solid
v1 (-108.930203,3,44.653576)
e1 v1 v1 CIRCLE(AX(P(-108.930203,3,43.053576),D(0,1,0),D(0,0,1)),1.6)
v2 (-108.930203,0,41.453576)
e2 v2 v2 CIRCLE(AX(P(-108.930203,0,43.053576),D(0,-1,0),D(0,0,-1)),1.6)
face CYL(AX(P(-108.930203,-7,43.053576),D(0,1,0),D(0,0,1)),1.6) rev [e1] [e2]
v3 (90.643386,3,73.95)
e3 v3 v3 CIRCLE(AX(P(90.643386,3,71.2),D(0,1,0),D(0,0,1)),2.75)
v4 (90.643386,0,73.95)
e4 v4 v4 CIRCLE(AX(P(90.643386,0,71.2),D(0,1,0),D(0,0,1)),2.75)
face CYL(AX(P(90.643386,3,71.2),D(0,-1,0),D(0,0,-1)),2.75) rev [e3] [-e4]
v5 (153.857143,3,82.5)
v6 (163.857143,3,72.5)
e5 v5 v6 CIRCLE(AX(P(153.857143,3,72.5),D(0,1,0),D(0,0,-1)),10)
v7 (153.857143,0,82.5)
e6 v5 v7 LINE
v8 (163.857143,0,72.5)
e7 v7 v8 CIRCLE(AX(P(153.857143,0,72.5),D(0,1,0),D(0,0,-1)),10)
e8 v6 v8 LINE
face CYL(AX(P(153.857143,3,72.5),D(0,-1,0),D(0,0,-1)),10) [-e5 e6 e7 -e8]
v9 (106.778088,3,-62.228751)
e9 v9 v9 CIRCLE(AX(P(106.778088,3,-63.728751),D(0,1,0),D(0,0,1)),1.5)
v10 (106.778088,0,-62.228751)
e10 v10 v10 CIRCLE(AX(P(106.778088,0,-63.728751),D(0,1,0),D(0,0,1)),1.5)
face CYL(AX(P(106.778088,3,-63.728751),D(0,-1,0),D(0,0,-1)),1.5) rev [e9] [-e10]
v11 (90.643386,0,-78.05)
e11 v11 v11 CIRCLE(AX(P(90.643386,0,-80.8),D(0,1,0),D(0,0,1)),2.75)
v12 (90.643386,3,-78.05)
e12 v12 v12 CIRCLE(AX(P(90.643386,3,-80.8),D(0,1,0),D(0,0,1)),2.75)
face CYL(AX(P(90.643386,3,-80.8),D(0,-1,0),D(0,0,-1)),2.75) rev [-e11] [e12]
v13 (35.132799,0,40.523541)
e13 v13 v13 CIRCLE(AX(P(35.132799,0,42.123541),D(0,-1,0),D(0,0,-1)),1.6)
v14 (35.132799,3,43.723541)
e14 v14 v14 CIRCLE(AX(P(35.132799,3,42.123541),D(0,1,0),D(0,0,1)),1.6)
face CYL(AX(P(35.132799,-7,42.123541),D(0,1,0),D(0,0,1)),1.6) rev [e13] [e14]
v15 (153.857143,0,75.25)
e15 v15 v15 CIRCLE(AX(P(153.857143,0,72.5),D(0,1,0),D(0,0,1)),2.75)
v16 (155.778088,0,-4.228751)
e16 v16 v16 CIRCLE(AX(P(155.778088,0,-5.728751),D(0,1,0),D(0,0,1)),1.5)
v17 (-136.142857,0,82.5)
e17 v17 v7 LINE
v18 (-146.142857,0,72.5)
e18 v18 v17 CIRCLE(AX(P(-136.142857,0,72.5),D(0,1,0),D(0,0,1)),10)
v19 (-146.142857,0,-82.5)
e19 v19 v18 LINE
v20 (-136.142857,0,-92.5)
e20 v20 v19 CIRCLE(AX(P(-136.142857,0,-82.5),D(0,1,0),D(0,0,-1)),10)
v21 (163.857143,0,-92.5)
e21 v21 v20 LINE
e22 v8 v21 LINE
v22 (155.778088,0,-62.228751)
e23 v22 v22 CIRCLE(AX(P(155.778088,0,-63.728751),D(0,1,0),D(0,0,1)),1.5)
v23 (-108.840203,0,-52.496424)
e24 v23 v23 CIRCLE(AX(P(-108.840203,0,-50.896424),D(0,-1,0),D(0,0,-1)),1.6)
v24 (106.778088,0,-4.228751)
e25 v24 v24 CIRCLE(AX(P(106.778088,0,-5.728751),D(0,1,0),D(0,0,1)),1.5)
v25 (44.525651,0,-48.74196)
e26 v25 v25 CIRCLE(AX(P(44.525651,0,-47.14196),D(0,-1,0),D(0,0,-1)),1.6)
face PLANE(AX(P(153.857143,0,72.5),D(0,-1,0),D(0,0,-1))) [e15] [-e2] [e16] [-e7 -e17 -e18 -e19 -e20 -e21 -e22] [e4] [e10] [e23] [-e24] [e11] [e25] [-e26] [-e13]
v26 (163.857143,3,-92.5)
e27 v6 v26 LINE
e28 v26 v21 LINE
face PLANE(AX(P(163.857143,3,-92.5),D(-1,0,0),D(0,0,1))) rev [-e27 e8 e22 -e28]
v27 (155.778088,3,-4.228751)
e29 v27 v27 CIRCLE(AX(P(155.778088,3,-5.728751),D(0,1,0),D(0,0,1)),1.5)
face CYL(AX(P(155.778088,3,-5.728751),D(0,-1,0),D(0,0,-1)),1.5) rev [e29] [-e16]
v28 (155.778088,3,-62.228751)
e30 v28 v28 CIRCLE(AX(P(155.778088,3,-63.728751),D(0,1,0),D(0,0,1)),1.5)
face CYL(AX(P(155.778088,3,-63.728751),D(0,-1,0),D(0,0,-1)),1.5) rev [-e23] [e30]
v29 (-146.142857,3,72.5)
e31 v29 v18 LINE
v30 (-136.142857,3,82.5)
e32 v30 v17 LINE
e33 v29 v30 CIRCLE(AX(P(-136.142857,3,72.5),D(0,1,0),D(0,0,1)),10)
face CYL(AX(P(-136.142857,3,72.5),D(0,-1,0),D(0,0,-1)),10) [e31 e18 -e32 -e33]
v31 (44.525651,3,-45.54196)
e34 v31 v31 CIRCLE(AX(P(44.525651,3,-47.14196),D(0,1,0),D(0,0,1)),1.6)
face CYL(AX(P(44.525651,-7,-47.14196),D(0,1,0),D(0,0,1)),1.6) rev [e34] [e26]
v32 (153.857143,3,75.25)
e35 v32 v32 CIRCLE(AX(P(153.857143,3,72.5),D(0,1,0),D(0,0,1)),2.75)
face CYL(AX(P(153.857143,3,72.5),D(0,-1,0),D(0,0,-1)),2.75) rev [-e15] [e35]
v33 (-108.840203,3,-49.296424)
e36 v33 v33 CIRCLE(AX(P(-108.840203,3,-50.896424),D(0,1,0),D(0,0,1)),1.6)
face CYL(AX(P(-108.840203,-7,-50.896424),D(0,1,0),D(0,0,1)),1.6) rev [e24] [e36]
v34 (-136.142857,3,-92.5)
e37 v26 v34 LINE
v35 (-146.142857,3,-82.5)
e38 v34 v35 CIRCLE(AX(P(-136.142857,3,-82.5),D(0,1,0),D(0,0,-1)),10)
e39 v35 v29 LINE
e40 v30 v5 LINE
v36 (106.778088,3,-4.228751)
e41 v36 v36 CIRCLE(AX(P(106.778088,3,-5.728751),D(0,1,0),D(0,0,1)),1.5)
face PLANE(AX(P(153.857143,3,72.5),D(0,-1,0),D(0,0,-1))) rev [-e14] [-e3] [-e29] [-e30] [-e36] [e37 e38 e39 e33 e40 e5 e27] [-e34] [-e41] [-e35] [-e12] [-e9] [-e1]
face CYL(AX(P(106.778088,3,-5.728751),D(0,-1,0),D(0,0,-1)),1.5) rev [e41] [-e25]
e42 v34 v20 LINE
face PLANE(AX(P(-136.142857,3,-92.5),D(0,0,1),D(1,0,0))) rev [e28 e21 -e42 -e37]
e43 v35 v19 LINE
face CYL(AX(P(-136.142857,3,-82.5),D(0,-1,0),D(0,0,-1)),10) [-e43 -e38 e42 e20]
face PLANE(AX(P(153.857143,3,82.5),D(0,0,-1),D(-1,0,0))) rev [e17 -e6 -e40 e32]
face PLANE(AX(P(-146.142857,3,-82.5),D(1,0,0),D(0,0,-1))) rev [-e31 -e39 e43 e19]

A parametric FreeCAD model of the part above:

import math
import FreeCAD as App
import Part
import Sketcher
from FreeCAD import Vector
Q = App.Units.Quantity

doc = App.newDocument("Part")
params = doc.addObject("Spreadsheet::Sheet", "Params")
for row, (alias, value) in enumerate([
    ("sketch1_diameter", "3 mm"),
    ("sketch1_radius", "10 mm"),
    ("sketch1_diameter2", "5.5 mm"),
    ("sketch1_width", "300 mm"),
    ("sketch1_height", "155 mm"),
    ("pad1_length", "3 mm"),
    ("sketch2_diameter", "3.2 mm"),
    ("pocket1_length", "10 mm"),
], start=1):
    params.set(f"A{row}", alias)
    params.set(f"B{row}", "=" + value)
    params.setAlias(f"B{row}", alias)

body = doc.addObject("PartDesign::Body", "Body")

sketch1 = body.newObject("Sketcher::SketchObject", "Sketch")
sketch1.AttachmentSupport = (doc.getObject("XZ_Plane"), [""])
sketch1.MapMode = "FlatFace"
sketch1.addGeometry(Part.LineSegment(Vector(163.857143, -92.5, 0), Vector(-136.142857, -92.5, 0)), False)
sketch1.addGeometry(Part.ArcOfCircle(Part.Circle(Vector(-136.142857, -82.5, 0), Vector(0, 0, 1), 10), math.radians(180), math.radians(270)), False)
sketch1.addGeometry(Part.LineSegment(Vector(-146.142857, -82.5, 0), Vector(-146.142857, 72.5, 0)), False)
sketch1.addGeometry(Part.ArcOfCircle(Part.Circle(Vector(-136.142857, 72.5, 0), Vector(0, 0, 1), 10), math.radians(90), math.radians(180)), False)
sketch1.addGeometry(Part.LineSegment(Vector(-136.142857, 82.5, 0), Vector(153.857143, 82.5, 0)), False)
sketch1.addGeometry(Part.ArcOfCircle(Part.Circle(Vector(153.857143, 72.5, 0), Vector(0, 0, 1), 10), math.radians(0), math.radians(90)), False)
sketch1.addGeometry(Part.LineSegment(Vector(163.857143, 72.5, 0), Vector(163.857143, -92.5, 0)), False)
sketch1.addGeometry(Part.Circle(Vector(153.857143, 72.5, 0), Vector(0, 0, 1), 2.75), False)
sketch1.addGeometry(Part.Circle(Vector(90.643386, 71.2, 0), Vector(0, 0, 1), 2.75), False)
sketch1.addGeometry(Part.Circle(Vector(155.778088, -5.728751, 0), Vector(0, 0, 1), 1.5), False)
sketch1.addGeometry(Part.Circle(Vector(155.778088, -63.728751, 0), Vector(0, 0, 1), 1.5), False)
sketch1.addGeometry(Part.Circle(Vector(106.778088, -5.728751, 0), Vector(0, 0, 1), 1.5), False)
sketch1.addGeometry(Part.Circle(Vector(106.778088, -63.728751, 0), Vector(0, 0, 1), 1.5), False)
sketch1.addGeometry(Part.Circle(Vector(90.643386, -80.8, 0), Vector(0, 0, 1), 2.75), False)
sketch1.addConstraint(Sketcher.Constraint("Tangent", 0, 2, 1, 2))
sketch1.addConstraint(Sketcher.Constraint("Tangent", 1, 1, 2, 1))
sketch1.addConstraint(Sketcher.Constraint("Tangent", 2, 2, 3, 2))
sketch1.addConstraint(Sketcher.Constraint("Tangent", 3, 1, 4, 1))
sketch1.addConstraint(Sketcher.Constraint("Tangent", 4, 2, 5, 2))
sketch1.addConstraint(Sketcher.Constraint("Tangent", 5, 1, 6, 1))
sketch1.addConstraint(Sketcher.Constraint("Coincident", 6, 2, 0, 1))
sketch1.addConstraint(Sketcher.Constraint("Horizontal", 0))
sketch1.addConstraint(Sketcher.Constraint("Vertical", 2))
sketch1.addConstraint(Sketcher.Constraint("Horizontal", 4))
sketch1.addConstraint(Sketcher.Constraint("Vertical", 6))
sketch1.addConstraint(Sketcher.Constraint("Coincident", 7, 3, 5, 3))
sketch1.addConstraint(Sketcher.Constraint("Equal", 1, 3))
sketch1.addConstraint(Sketcher.Constraint("Equal", 3, 5))
sketch1.addConstraint(Sketcher.Constraint("Equal", 7, 8))
sketch1.addConstraint(Sketcher.Constraint("Equal", 9, 10))
sketch1.addConstraint(Sketcher.Constraint("Equal", 10, 11))
sketch1.addConstraint(Sketcher.Constraint("Equal", 11, 12))
sketch1.addConstraint(Sketcher.Constraint("Equal", 8, 13))
sketch1.addConstraint(Sketcher.Constraint("Horizontal", 9, 3, 11, 3))
sketch1.addConstraint(Sketcher.Constraint("Horizontal", 10, 3, 12, 3))
sketch1.addConstraint(Sketcher.Constraint("Vertical", 9, 3, 10, 3))
sketch1.addConstraint(Sketcher.Constraint("Vertical", 11, 3, 12, 3))
sketch1.addConstraint(Sketcher.Constraint("Vertical", 8, 3, 13, 3))
sketch1.addConstraint(Sketcher.Constraint("Diameter", 9, Q("3 mm")))
sketch1.addConstraint(Sketcher.Constraint("Radius", 1, Q("10 mm")))
sketch1.addConstraint(Sketcher.Constraint("Diameter", 7, Q("5.5 mm")))
sketch1.addConstraint(Sketcher.Constraint("DistanceX", 0, 2, 0, 1, Q("300 mm")))
sketch1.addConstraint(Sketcher.Constraint("DistanceY", 2, 1, 2, 2, Q("155 mm")))
sketch1.addConstraint(Sketcher.Constraint("DistanceY", 10, 3, 9, 3, Q("58 mm")))
sketch1.addConstraint(Sketcher.Constraint("DistanceX", 11, 3, 9, 3, Q("49 mm")))
sketch1.addConstraint(Sketcher.Constraint("DistanceY", 13, 3, 8, 3, Q("152 mm")))
sketch1.addConstraint(Sketcher.Constraint("DistanceY", 1, 3, -1, 1, Q("82.5 mm")))
sketch1.addConstraint(Sketcher.Constraint("DistanceY", -1, 1, 8, 3, Q("71.2 mm")))
sketch1.addConstraint(Sketcher.Constraint("DistanceX", 8, 3, 9, 3, Q("65.134702 mm")))
sketch1.addConstraint(Sketcher.Constraint("DistanceX", -1, 1, 9, 3, Q("155.778088 mm")))
sketch1.addConstraint(Sketcher.Constraint("DistanceY", 9, 3, -1, 1, Q("5.728751 mm")))
sketch1.addConstraint(Sketcher.Constraint("DistanceX", 1, 3, -1, 1, Q("136.142857 mm")))
sketch1.setExpression("Constraints[24]", "Params.sketch1_diameter")
sketch1.setExpression("Constraints[25]", "Params.sketch1_radius")
sketch1.setExpression("Constraints[26]", "Params.sketch1_diameter2")
sketch1.setExpression("Constraints[27]", "Params.sketch1_width")
sketch1.setExpression("Constraints[28]", "Params.sketch1_height")
pad1 = body.newObject("PartDesign::Pad", "Pad")
pad1.Profile = sketch1
pad1.setExpression("Length", "Params.pad1_length")
pad1.Reversed = True

sketch2 = body.newObject("Sketcher::SketchObject", "Sketch001")
sketch2.AttachmentSupport = (doc.getObject("XZ_Plane"), [""])
sketch2.MapMode = "FlatFace"
sketch2.AttachmentOffset = App.Placement(Vector(0, 0, -3), App.Rotation())
sketch2.addGeometry(Part.Circle(Vector(44.525651, -47.14196, 0), Vector(0, 0, 1), 1.6), False)
sketch2.addGeometry(Part.Circle(Vector(35.132799, 42.123541, 0), Vector(0, 0, 1), 1.6), False)
sketch2.addGeometry(Part.Circle(Vector(-108.930203, 43.053576, 0), Vector(0, 0, 1), 1.6), False)
sketch2.addGeometry(Part.Circle(Vector(-108.840203, -50.896424, 0), Vector(0, 0, 1), 1.6), False)
sketch2.addConstraint(Sketcher.Constraint("Equal", 0, 1))
sketch2.addConstraint(Sketcher.Constraint("Equal", 1, 2))
sketch2.addConstraint(Sketcher.Constraint("Equal", 2, 3))
sketch2.addConstraint(Sketcher.Constraint("Diameter", 0, Q("3.2 mm")))
sketch2.addConstraint(Sketcher.Constraint("DistanceX", 2, 3, 3, 3, Q("0.09 mm")))
sketch2.addConstraint(Sketcher.Constraint("DistanceY", 3, 3, 2, 3, Q("93.95 mm")))
sketch2.addConstraint(Sketcher.Constraint("DistanceX", 2, 3, 1, 3, Q("144.063002 mm")))
sketch2.addConstraint(Sketcher.Constraint("DistanceX", -1, 1, 1, 3, Q("35.132799 mm")))
sketch2.addConstraint(Sketcher.Constraint("DistanceY", 0, 3, 1, 3, Q("89.265501 mm")))
sketch2.addConstraint(Sketcher.Constraint("DistanceX", -1, 1, 0, 3, Q("44.525651 mm")))
sketch2.addConstraint(Sketcher.Constraint("DistanceY", 0, 3, -1, 1, Q("47.14196 mm")))
sketch2.addConstraint(Sketcher.Constraint("DistanceY", -1, 1, 2, 3, Q("43.053576 mm")))
sketch2.setExpression("Constraints[3]", "Params.sketch2_diameter")
pocket1 = body.newObject("PartDesign::Pocket", "Pocket")
pocket1.Profile = sketch2
pocket1.setExpression("Length", "Params.pocket1_length")
pocket1.Reversed = True

doc.recompute()
